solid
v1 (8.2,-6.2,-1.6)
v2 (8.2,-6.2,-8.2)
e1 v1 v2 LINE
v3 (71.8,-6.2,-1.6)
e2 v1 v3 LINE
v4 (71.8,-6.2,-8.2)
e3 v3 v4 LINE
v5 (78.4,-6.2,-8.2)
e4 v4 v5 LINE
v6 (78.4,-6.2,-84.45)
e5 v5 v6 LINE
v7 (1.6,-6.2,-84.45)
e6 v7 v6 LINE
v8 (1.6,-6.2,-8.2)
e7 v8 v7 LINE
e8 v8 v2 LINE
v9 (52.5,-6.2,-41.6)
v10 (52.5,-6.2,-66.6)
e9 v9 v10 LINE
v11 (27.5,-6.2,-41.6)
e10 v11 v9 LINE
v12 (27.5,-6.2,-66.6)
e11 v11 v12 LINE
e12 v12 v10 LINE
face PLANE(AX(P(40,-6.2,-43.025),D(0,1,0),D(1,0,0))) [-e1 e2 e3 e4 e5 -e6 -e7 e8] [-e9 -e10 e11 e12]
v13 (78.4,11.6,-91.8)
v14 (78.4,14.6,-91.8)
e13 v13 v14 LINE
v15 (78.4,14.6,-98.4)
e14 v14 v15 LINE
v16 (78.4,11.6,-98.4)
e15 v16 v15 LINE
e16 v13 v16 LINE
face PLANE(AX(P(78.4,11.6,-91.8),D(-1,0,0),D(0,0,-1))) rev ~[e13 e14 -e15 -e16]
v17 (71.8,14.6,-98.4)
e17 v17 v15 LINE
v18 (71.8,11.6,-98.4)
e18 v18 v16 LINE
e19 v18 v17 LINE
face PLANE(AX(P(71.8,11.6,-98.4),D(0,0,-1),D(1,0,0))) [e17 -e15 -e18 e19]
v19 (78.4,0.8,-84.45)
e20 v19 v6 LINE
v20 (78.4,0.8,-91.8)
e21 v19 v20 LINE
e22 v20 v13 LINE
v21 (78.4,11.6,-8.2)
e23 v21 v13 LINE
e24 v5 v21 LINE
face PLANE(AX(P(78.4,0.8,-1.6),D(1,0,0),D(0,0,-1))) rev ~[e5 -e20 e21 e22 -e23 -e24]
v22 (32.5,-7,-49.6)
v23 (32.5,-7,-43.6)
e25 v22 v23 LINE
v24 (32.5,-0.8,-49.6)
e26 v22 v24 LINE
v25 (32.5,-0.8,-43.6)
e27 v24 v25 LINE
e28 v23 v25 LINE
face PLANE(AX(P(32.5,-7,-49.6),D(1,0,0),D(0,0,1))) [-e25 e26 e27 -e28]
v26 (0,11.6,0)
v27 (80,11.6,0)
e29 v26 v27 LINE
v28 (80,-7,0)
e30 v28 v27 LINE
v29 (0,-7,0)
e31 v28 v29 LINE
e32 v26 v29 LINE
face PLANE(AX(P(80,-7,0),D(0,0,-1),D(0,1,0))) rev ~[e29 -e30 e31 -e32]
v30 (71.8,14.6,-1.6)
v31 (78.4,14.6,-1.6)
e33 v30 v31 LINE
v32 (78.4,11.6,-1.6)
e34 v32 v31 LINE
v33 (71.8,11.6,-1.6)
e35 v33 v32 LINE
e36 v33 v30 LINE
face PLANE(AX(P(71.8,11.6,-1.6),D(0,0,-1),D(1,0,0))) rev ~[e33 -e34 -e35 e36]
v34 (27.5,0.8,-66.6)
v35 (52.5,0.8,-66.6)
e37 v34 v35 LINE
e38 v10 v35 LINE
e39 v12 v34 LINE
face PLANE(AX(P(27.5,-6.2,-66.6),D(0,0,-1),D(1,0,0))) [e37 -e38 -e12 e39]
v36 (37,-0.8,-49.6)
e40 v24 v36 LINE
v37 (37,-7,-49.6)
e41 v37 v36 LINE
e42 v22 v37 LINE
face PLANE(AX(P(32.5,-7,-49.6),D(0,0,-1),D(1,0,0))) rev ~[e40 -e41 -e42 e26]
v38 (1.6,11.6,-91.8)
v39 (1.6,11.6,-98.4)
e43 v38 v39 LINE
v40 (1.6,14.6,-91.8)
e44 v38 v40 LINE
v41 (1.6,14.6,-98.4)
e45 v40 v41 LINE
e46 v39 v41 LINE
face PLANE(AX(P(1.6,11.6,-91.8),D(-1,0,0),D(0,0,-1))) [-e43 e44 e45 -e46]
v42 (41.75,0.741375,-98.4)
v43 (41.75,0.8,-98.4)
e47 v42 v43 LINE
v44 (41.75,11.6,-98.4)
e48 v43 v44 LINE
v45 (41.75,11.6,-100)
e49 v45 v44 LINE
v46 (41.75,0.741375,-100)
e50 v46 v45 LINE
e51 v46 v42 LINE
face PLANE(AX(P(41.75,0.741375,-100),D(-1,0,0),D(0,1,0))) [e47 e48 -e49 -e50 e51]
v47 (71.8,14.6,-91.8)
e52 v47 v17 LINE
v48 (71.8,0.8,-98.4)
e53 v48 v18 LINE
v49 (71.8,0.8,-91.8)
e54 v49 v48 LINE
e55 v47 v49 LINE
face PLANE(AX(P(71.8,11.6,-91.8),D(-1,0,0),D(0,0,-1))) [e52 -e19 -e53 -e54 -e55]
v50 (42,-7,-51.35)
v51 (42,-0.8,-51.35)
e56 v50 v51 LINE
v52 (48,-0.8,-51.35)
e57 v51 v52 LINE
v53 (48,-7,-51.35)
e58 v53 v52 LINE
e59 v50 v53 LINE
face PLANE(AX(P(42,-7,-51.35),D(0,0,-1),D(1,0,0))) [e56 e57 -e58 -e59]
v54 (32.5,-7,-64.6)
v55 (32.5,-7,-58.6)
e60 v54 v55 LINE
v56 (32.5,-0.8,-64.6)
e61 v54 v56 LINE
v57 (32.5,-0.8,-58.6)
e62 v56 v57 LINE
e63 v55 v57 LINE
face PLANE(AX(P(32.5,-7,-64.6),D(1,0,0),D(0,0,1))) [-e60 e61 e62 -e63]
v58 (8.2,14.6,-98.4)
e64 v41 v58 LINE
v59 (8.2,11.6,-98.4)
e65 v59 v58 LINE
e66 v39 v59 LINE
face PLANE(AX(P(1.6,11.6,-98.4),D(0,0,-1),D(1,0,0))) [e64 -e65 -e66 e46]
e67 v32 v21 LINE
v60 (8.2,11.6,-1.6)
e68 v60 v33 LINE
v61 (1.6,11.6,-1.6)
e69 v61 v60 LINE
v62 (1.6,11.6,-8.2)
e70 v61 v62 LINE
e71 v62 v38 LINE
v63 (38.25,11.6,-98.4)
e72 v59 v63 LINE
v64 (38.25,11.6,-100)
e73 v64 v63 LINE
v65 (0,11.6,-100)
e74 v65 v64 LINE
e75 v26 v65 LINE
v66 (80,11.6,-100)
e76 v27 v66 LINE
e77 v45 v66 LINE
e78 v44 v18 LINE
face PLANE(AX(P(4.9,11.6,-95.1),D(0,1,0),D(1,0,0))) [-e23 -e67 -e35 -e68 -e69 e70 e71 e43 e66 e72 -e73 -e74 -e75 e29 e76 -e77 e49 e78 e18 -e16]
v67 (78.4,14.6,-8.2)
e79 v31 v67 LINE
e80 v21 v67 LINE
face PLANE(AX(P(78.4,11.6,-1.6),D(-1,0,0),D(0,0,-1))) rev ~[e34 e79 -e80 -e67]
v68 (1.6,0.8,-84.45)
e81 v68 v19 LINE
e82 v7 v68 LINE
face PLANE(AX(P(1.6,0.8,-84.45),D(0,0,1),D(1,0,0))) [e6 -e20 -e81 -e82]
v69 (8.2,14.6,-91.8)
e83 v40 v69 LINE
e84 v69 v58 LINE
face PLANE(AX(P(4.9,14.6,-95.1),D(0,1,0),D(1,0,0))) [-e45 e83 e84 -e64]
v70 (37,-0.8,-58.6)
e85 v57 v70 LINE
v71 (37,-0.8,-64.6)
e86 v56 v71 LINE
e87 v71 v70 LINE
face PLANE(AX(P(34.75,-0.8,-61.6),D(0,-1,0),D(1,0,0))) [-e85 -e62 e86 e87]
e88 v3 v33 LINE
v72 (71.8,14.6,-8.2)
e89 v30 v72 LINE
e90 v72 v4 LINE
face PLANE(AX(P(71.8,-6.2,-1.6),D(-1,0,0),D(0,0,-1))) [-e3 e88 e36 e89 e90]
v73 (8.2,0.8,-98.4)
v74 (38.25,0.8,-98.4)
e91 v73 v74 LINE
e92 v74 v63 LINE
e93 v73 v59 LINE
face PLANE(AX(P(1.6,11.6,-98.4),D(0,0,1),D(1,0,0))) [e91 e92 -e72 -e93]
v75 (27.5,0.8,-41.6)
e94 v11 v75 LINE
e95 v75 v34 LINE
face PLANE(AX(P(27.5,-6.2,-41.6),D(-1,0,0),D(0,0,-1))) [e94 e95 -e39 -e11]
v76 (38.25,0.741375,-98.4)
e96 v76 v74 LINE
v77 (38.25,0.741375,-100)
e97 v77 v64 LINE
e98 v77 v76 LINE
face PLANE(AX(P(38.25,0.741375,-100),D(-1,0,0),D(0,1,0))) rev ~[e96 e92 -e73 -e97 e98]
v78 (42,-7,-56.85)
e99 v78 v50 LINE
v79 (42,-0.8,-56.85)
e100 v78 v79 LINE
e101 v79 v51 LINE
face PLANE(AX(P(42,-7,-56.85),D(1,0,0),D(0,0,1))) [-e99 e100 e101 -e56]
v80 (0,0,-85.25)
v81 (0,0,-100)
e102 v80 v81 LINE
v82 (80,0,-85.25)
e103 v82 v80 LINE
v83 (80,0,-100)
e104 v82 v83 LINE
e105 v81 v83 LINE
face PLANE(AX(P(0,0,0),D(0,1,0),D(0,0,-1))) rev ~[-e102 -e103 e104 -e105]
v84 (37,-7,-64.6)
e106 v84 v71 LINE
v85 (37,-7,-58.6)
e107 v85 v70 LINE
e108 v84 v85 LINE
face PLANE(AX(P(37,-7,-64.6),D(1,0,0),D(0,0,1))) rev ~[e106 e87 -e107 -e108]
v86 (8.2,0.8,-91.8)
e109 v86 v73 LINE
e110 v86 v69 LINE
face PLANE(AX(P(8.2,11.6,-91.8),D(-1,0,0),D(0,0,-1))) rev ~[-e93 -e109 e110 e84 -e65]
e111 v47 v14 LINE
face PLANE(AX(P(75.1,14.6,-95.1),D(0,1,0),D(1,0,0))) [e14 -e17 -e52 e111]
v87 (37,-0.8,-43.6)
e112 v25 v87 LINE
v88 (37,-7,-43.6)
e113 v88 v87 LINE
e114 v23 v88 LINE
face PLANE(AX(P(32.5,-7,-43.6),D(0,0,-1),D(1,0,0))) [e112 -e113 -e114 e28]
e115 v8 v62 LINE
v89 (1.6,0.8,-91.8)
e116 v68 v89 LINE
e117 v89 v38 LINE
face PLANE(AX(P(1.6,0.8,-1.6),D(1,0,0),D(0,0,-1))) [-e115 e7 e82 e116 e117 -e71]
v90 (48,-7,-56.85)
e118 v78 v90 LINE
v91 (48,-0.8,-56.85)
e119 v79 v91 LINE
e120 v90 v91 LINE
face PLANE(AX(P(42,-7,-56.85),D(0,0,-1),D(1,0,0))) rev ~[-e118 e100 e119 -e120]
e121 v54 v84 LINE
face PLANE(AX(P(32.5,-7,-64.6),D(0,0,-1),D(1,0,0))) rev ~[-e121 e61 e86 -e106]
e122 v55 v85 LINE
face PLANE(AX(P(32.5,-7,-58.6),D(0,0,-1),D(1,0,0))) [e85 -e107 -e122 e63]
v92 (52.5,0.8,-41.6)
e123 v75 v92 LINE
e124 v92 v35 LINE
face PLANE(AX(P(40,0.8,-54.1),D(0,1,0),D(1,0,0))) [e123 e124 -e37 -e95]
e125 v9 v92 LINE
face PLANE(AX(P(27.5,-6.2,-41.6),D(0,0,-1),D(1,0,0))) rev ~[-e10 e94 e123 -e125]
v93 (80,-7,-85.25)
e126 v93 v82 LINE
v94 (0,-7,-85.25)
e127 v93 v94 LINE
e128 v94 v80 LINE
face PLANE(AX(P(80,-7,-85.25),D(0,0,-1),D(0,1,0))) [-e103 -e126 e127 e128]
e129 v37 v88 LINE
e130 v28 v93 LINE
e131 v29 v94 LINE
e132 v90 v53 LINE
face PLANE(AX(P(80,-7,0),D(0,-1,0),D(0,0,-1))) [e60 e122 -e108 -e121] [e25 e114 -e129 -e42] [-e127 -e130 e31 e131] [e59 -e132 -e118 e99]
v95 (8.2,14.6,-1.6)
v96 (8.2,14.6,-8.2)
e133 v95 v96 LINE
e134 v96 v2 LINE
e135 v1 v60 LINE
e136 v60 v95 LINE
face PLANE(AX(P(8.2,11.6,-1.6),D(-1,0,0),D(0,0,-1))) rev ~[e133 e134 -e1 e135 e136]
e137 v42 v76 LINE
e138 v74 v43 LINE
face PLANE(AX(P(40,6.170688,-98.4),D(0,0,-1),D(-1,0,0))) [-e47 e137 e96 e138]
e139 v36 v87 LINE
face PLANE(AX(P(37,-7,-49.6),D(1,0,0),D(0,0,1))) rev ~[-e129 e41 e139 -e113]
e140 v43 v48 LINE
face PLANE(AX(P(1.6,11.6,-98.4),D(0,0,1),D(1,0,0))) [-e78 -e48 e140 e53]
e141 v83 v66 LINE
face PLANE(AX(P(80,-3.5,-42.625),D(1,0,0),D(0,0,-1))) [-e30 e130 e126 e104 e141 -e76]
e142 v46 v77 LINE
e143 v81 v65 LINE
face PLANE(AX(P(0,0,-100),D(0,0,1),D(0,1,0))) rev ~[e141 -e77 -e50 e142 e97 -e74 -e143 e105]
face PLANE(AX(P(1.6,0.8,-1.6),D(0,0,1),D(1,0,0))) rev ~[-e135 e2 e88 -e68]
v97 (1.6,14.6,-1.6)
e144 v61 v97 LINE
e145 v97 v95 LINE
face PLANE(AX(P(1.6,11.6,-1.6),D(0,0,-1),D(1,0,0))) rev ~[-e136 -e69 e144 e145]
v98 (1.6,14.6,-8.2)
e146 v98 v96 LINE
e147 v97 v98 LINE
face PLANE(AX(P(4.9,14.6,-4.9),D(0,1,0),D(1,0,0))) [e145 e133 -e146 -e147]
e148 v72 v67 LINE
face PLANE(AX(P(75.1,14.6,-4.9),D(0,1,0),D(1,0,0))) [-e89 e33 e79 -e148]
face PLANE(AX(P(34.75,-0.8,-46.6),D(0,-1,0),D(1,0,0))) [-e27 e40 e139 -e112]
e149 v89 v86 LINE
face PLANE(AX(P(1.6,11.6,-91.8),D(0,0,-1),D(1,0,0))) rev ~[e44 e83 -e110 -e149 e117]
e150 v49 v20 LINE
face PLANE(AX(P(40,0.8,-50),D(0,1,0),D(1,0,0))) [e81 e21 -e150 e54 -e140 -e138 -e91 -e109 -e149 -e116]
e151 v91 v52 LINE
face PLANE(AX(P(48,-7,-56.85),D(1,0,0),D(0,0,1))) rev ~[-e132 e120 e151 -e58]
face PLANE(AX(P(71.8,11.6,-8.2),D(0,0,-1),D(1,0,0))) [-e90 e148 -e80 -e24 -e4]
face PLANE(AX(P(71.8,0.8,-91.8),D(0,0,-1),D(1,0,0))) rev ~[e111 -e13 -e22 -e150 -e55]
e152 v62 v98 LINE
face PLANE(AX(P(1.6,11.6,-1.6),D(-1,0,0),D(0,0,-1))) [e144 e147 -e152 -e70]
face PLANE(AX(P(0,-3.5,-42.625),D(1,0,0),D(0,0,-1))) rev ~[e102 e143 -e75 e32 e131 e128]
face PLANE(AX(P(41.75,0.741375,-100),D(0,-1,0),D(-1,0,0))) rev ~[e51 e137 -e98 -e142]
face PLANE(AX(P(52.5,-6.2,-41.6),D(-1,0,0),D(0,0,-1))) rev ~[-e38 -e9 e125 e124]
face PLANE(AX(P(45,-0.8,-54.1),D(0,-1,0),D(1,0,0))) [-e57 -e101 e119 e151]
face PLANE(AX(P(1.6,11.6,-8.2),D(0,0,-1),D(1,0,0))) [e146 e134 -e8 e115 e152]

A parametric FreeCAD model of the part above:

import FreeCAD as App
import Part
import Sketcher

V = App.Vector
Q = App.Units.Quantity

doc = App.newDocument("Part")
params = doc.addObject("Spreadsheet::Sheet", "Params")
for row, (alias, value) in enumerate([
    ("sketch1_height", "100 mm"),
    ("sketch1_width", "11.6 mm"),
    ("pad1_length", "80 mm"),
    ("sketch2_width", "76.8 mm"),
    ("sketch2_height", "96.8 mm"),
    ("pocket1_length", "10.8 mm"),
    ("sketch3_width", "7 mm"),
    ("sketch3_height", "85.25 mm"),
    ("pad2_length", "80 mm"),
    ("sketch4_width", "76.8 mm"),
    ("sketch4_height", "82.85 mm"),
    ("pad3_length", "7 mm"),
    ("sketch5_width", "6.6 mm"),
    ("pad4_length", "17.8 mm"),
    ("sketch6_width", "6.6 mm"),
    ("pad5_length", "10.8 mm"),
    ("sketch7_width", "3.5 mm"),
    ("pocket2_length", "1.6 mm"),
    ("sketch8_width", "6.6 mm"),
    ("pad6_length", "3 mm"),
    ("sketch9_width", "25 mm"),
    ("pad7_length", "7 mm"),
    ("sketch10_width", "6 mm"),
    ("sketch10_width2", "4.5 mm"),
    ("sketch10_height", "5.5 mm"),
    ("pocket3_length", "6.2 mm"),
], start=1):
    params.set(f"A{row}", alias)
    params.set(f"B{row}", "=" + value)
    params.setAlias(f"B{row}", alias)

body = doc.addObject("PartDesign::Body", "Body")

sketch1 = doc.addObject("Sketcher::SketchObject", "Sketch")
body.addObject(sketch1)
sketch1.AttachmentSupport = (doc.YZ_Plane, [""])
sketch1.MapMode = "FlatFace"
sketch1.addGeometry(Part.LineSegment(V(11.6, 0, 0), V(0, 0, 0)), False)
sketch1.addGeometry(Part.LineSegment(V(0, 0, 0), V(0, -100, 0)), False)
sketch1.addGeometry(Part.LineSegment(V(0, -100, 0), V(11.6, -100, 0)), False)
sketch1.addGeometry(Part.LineSegment(V(11.6, -100, 0), V(11.6, 0, 0)), False)
sketch1.addConstraint(Sketcher.Constraint("Coincident", 0, 2, 1, 1))
sketch1.addConstraint(Sketcher.Constraint("Coincident", 1, 2, 2, 1))
sketch1.addConstraint(Sketcher.Constraint("Coincident", 2, 2, 3, 1))
sketch1.addConstraint(Sketcher.Constraint("Coincident", 3, 2, 0, 1))
sketch1.addConstraint(Sketcher.Constraint("Horizontal", 0))
sketch1.addConstraint(Sketcher.Constraint("Vertical", 1))
sketch1.addConstraint(Sketcher.Constraint("Horizontal", 2))
sketch1.addConstraint(Sketcher.Constraint("Vertical", 3))
sketch1.addConstraint(Sketcher.Constraint("Coincident", 0, 2, -1, 1))
sketch1.addConstraint(Sketcher.Constraint("DistanceY", 1, 2, 1, 1, Q("100 mm")))
sketch1.addConstraint(Sketcher.Constraint("DistanceX", 0, 2, 0, 1, Q("11.6 mm")))
sketch1.setExpression("Constraints[9]", "Params.sketch1_height")
sketch1.setExpression("Constraints[10]", "Params.sketch1_width")
pad1 = doc.addObject("PartDesign::Pad", "Pad")
body.addObject(pad1)
pad1.Profile = sketch1
pad1.setExpression("Length", "Params.pad1_length")

sketch2 = doc.addObject("Sketcher::SketchObject", "Sketch001")
body.addObject(sketch2)
sketch2.AttachmentSupport = (doc.XZ_Plane, [""])
sketch2.MapMode = "FlatFace"
sketch2.AttachmentOffset = App.Placement(V(0, 0, -11.6), App.Rotation())
sketch2.addGeometry(Part.LineSegment(V(1.6, -98.4, 0), V(1.6, -1.6, 0)), False)
sketch2.addGeometry(Part.LineSegment(V(1.6, -1.6, 0), V(78.4, -1.6, 0)), False)
sketch2.addGeometry(Part.LineSegment(V(78.4, -1.6, 0), V(78.4, -98.4, 0)), False)
sketch2.addGeometry(Part.LineSegment(V(78.4, -98.4, 0), V(1.6, -98.4, 0)), False)
sketch2.addConstraint(Sketcher.Constraint("Coincident", 0, 2, 1, 1))
sketch2.addConstraint(Sketcher.Constraint("Coincident", 1, 2, 2, 1))
sketch2.addConstraint(Sketcher.Constraint("Coincident", 2, 2, 3, 1))
sketch2.addConstraint(Sketcher.Constraint("Coincident", 3, 2, 0, 1))
sketch2.addConstraint(Sketcher.Constraint("Vertical", 0))
sketch2.addConstraint(Sketcher.Constraint("Horizontal", 1))
sketch2.addConstraint(Sketcher.Constraint("Vertical", 2))
sketch2.addConstraint(Sketcher.Constraint("Horizontal", 3))
sketch2.addConstraint(Sketcher.Constraint("DistanceX", 1, 1, 1, 2, Q("76.8 mm")))
sketch2.addConstraint(Sketcher.Constraint("DistanceY", 0, 1, 0, 2, Q("96.8 mm")))
sketch2.addConstraint(Sketcher.Constraint("DistanceX", -1, 1, 0, 2, Q("1.6 mm")))
sketch2.addConstraint(Sketcher.Constraint("DistanceY", 0, 2, -1, 1, Q("1.6 mm")))
sketch2.setExpression("Constraints[8]", "Params.sketch2_width")
sketch2.setExpression("Constraints[9]", "Params.sketch2_height")
pocket1 = doc.addObject("PartDesign::Pocket", "Pocket")
body.addObject(pocket1)
pocket1.Profile = sketch2
pocket1.setExpression("Length", "Params.pocket1_length")
pocket1.Reversed = True
body2 = doc.addObject("PartDesign::Body", "Body001")

sketch3 = doc.addObject("Sketcher::SketchObject", "Sketch002")
body2.addObject(sketch3)
sketch3.AttachmentSupport = (doc.getObject("YZ_Plane001"), [""])
sketch3.MapMode = "FlatFace"
sketch3.AttachmentOffset = App.Placement(V(0, 0, 80), App.Rotation())
sketch3.addGeometry(Part.LineSegment(V(0, 0, 0), V(-7, 0, 0)), False)
sketch3.addGeometry(Part.LineSegment(V(-7, 0, 0), V(-7, -85.25, 0)), False)
sketch3.addGeometry(Part.LineSegment(V(-7, -85.25, 0), V(0, -85.25, 0)), False)
sketch3.addGeometry(Part.LineSegment(V(0, -85.25, 0), V(0, 0, 0)), False)
sketch3.addConstraint(Sketcher.Constraint("Coincident", 0, 2, 1, 1))
sketch3.addConstraint(Sketcher.Constraint("Coincident", 1, 2, 2, 1))
sketch3.addConstraint(Sketcher.Constraint("Coincident", 2, 2, 3, 1))
sketch3.addConstraint(Sketcher.Constraint("Coincident", 3, 2, 0, 1))
sketch3.addConstraint(Sketcher.Constraint("Horizontal", 0))
sketch3.addConstraint(Sketcher.Constraint("Vertical", 1))
sketch3.addConstraint(Sketcher.Constraint("Horizontal", 2))
sketch3.addConstraint(Sketcher.Constraint("Vertical", 3))
sketch3.addConstraint(Sketcher.Constraint("Coincident", 3, 2, -1, 1))
sketch3.addConstraint(Sketcher.Constraint("DistanceX", 0, 2, 0, 1, Q("7 mm")))
sketch3.addConstraint(Sketcher.Constraint("DistanceY", 1, 2, 1, 1, Q("85.25 mm")))
sketch3.setExpression("Constraints[9]", "Params.sketch3_width")
sketch3.setExpression("Constraints[10]", "Params.sketch3_height")
pad2 = doc.addObject("PartDesign::Pad", "Pad001")
body2.addObject(pad2)
pad2.Profile = sketch3
pad2.setExpression("Length", "Params.pad2_length")
pad2.Reversed = True
body3 = doc.addObject("PartDesign::Body", "Body002")

sketch4 = doc.addObject("Sketcher::SketchObject", "Sketch003")
body3.addObject(sketch4)
sketch4.AttachmentSupport = (doc.getObject("XZ_Plane002"), [""])
sketch4.MapMode = "FlatFace"
sketch4.AttachmentOffset = App.Placement(V(0, 0, -0.8), App.Rotation())
sketch4.addGeometry(Part.LineSegment(V(1.6, -84.45, 0), V(1.6, -1.6, 0)), False)
sketch4.addGeometry(Part.LineSegment(V(1.6, -1.6, 0), V(78.4, -1.6, 0)), False)
sketch4.addGeometry(Part.LineSegment(V(78.4, -1.6, 0), V(78.4, -84.45, 0)), False)
sketch4.addGeometry(Part.LineSegment(V(78.4, -84.45, 0), V(1.6, -84.45, 0)), False)
sketch4.addConstraint(Sketcher.Constraint("Coincident", 0, 2, 1, 1))
sketch4.addConstraint(Sketcher.Constraint("Coincident", 1, 2, 2, 1))
sketch4.addConstraint(Sketcher.Constraint("Coincident", 2, 2, 3, 1))
sketch4.addConstraint(Sketcher.Constraint("Coincident", 3, 2, 0, 1))
sketch4.addConstraint(Sketcher.Constraint("Vertical", 0))
sketch4.addConstraint(Sketcher.Constraint("Horizontal", 1))
sketch4.addConstraint(Sketcher.Constraint("Vertical", 2))
sketch4.addConstraint(Sketcher.Constraint("Horizontal", 3))
sketch4.addConstraint(Sketcher.Constraint("DistanceX", 1, 1, 1, 2, Q("76.8 mm")))
sketch4.addConstraint(Sketcher.Constraint("DistanceY", 0, 1, 0, 2, Q("82.85 mm")))
sketch4.addConstraint(Sketcher.Constraint("DistanceX", -1, 1, 0, 2, Q("1.6 mm")))
sketch4.addConstraint(Sketcher.Constraint("DistanceY", 0, 2, -1, 1, Q("1.6 mm")))
sketch4.setExpression("Constraints[8]", "Params.sketch4_width")
sketch4.setExpression("Constraints[9]", "Params.sketch4_height")
pad3 = doc.addObject("PartDesign::Pad", "Pad002")
body3.addObject(pad3)
pad3.Profile = sketch4
pad3.setExpression("Length", "Params.pad3_length")
doc.recompute()

body4 = doc.addObject("PartDesign::Body", "Body003")
body4.BaseFeature = body3
boolean = doc.addObject("PartDesign::Boolean", "Boolean")
body.addObject(boolean)
boolean.Type = "Cut"
boolean.addObjects([body4])
doc.recompute()

boolean2 = doc.addObject("PartDesign::Boolean", "Boolean001")
body2.addObject(boolean2)
boolean2.Type = "Cut"
boolean2.addObjects([body3])
doc.recompute()

boolean3 = doc.addObject("PartDesign::Boolean", "Boolean002")
body.addObject(boolean3)
boolean3.Type = "Fuse"
boolean3.addObjects([body2])

sketch5 = doc.addObject("Sketcher::SketchObject", "Sketch004")
body.addObject(sketch5)
sketch5.AttachmentSupport = (doc.XZ_Plane, [""])
sketch5.MapMode = "FlatFace"
sketch5.AttachmentOffset = App.Placement(V(0, 0, 6.2), App.Rotation())
sketch5.addGeometry(Part.LineSegment(V(1.6, -8.2, 0), V(1.6, -1.6, 0)), False)
sketch5.addGeometry(Part.LineSegment(V(1.6, -1.6, 0), V(8.2, -1.6, 0)), False)
sketch5.addGeometry(Part.LineSegment(V(8.2, -1.6, 0), V(8.2, -8.2, 0)), False)
sketch5.addGeometry(Part.LineSegment(V(8.2, -8.2, 0), V(1.6, -8.2, 0)), False)
sketch5.addGeometry(Part.LineSegment(V(71.8, -8.2, 0), V(71.8, -1.6, 0)), False)
sketch5.addGeometry(Part.LineSegment(V(71.8, -1.6, 0), V(78.4, -1.6, 0)), False)
sketch5.addGeometry(Part.LineSegment(V(78.4, -1.6, 0), V(78.4, -8.2, 0)), False)
sketch5.addGeometry(Part.LineSegment(V(78.4, -8.2, 0), V(71.8, -8.2, 0)), False)
sketch5.addConstraint(Sketcher.Constraint("Coincident", 0, 2, 1, 1))
sketch5.addConstraint(Sketcher.Constraint("Coincident", 1, 2, 2, 1))
sketch5.addConstraint(Sketcher.Constraint("Coincident", 2, 2, 3, 1))
sketch5.addConstraint(Sketcher.Constraint("Coincident", 3, 2, 0, 1))
sketch5.addConstraint(Sketcher.Constraint("Coincident", 4, 2, 5, 1))
sketch5.addConstraint(Sketcher.Constraint("Coincident", 5, 2, 6, 1))
sketch5.addConstraint(Sketcher.Constraint("Coincident", 6, 2, 7, 1))
sketch5.addConstraint(Sketcher.Constraint("Coincident", 7, 2, 4, 1))
sketch5.addConstraint(Sketcher.Constraint("Vertical", 0))
sketch5.addConstraint(Sketcher.Constraint("Horizontal", 1))
sketch5.addConstraint(Sketcher.Constraint("Vertical", 2))
sketch5.addConstraint(Sketcher.Constraint("Horizontal", 3))
sketch5.addConstraint(Sketcher.Constraint("Vertical", 4))
sketch5.addConstraint(Sketcher.Constraint("Horizontal", 5))
sketch5.addConstraint(Sketcher.Constraint("Vertical", 6))
sketch5.addConstraint(Sketcher.Constraint("Horizontal", 7))
sketch5.addConstraint(Sketcher.Constraint("Horizontal", 1, 2, 4, 2))
sketch5.addConstraint(Sketcher.Constraint("Horizontal", 3, 2, 6, 2))
sketch5.addConstraint(Sketcher.Constraint("Equal", 3, 5))
sketch5.addConstraint(Sketcher.Constraint("Equal", 7, 0))
sketch5.addConstraint(Sketcher.Constraint("DistanceX", 1, 1, 1, 2, Q("6.6 mm")))
sketch5.addConstraint(Sketcher.Constraint("DistanceX", -1, 1, 0, 2, Q("1.6 mm")))
sketch5.addConstraint(Sketcher.Constraint("DistanceY", 0, 2, -1, 1, Q("1.6 mm")))
sketch5.addConstraint(Sketcher.Constraint("DistanceX", -1, 1, 4, 2, Q("71.8 mm")))
sketch5.setExpression("Constraints[20]", "Params.sketch5_width")
pad4 = doc.addObject("PartDesign::Pad", "Pad003")
body.addObject(pad4)
pad4.Profile = sketch5
pad4.setExpression("Length", "Params.pad4_length")
pad4.Reversed = True

sketch6 = doc.addObject("Sketcher::SketchObject", "Sketch005")
body.addObject(sketch6)
sketch6.AttachmentSupport = (doc.XZ_Plane, [""])
sketch6.MapMode = "FlatFace"
sketch6.AttachmentOffset = App.Placement(V(0, 0, -0.8), App.Rotation())
sketch6.addGeometry(Part.LineSegment(V(1.6, -98.4, 0), V(1.6, -91.8, 0)), False)
sketch6.addGeometry(Part.LineSegment(V(1.6, -91.8, 0), V(8.2, -91.8, 0)), False)
sketch6.addGeometry(Part.LineSegment(V(8.2, -91.8, 0), V(8.2, -98.4, 0)), False)
sketch6.addGeometry(Part.LineSegment(V(8.2, -98.4, 0), V(1.6, -98.4, 0)), False)
sketch6.addGeometry(Part.LineSegment(V(71.8, -98.4, 0), V(71.8, -91.8, 0)), False)
sketch6.addGeometry(Part.LineSegment(V(71.8, -91.8, 0), V(78.4, -91.8, 0)), False)
sketch6.addGeometry(Part.LineSegment(V(78.4, -91.8, 0), V(78.4, -98.4, 0)), False)
sketch6.addGeometry(Part.LineSegment(V(78.4, -98.4, 0), V(71.8, -98.4, 0)), False)
sketch6.addConstraint(Sketcher.Constraint("Coincident", 0, 2, 1, 1))
sketch6.addConstraint(Sketcher.Constraint("Coincident", 1, 2, 2, 1))
sketch6.addConstraint(Sketcher.Constraint("Coincident", 2, 2, 3, 1))
sketch6.addConstraint(Sketcher.Constraint("Coincident", 3, 2, 0, 1))
sketch6.addConstraint(Sketcher.Constraint("Coincident", 4, 2, 5, 1))
sketch6.addConstraint(Sketcher.Constraint("Coincident", 5, 2, 6, 1))
sketch6.addConstraint(Sketcher.Constraint("Coincident", 6, 2, 7, 1))
sketch6.addConstraint(Sketcher.Constraint("Coincident", 7, 2, 4, 1))
sketch6.addConstraint(Sketcher.Constraint("Vertical", 0))
sketch6.addConstraint(Sketcher.Constraint("Horizontal", 1))
sketch6.addConstraint(Sketcher.Constraint("Vertical", 2))
sketch6.addConstraint(Sketcher.Constraint("Horizontal", 3))
sketch6.addConstraint(Sketcher.Constraint("Vertical", 4))
sketch6.addConstraint(Sketcher.Constraint("Horizontal", 5))
sketch6.addConstraint(Sketcher.Constraint("Vertical", 6))
sketch6.addConstraint(Sketcher.Constraint("Horizontal", 7))
sketch6.addConstraint(Sketcher.Constraint("Horizontal", 1, 2, 4, 2))
sketch6.addConstraint(Sketcher.Constraint("Horizontal", 3, 2, 6, 2))
sketch6.addConstraint(Sketcher.Constraint("Equal", 3, 5))
sketch6.addConstraint(Sketcher.Constraint("Equal", 7, 0))
sketch6.addConstraint(Sketcher.Constraint("DistanceX", 1, 1, 1, 2, Q("6.6 mm")))
sketch6.addConstraint(Sketcher.Constraint("DistanceX", -1, 1, 0, 2, Q("1.6 mm")))
sketch6.addConstraint(Sketcher.Constraint("DistanceY", 0, 2, -1, 1, Q("91.8 mm")))
sketch6.addConstraint(Sketcher.Constraint("DistanceX", -1, 1, 4, 2, Q("71.8 mm")))
sketch6.setExpression("Constraints[20]", "Params.sketch6_width")
pad5 = doc.addObject("PartDesign::Pad", "Pad004")
body.addObject(pad5)
pad5.Profile = sketch6
pad5.setExpression("Length", "Params.pad5_length")
pad5.Reversed = True

sketch7 = doc.addObject("Sketcher::SketchObject", "Sketch006")
body.addObject(sketch7)
sketch7.AttachmentSupport = (doc.XY_Plane, [""])
sketch7.MapMode = "FlatFace"
sketch7.AttachmentOffset = App.Placement(V(0, 0, -100), App.Rotation())
sketch7.addGeometry(Part.LineSegment(V(41.75, 11.6, 0), V(41.75, 0.741375, 0)), False)
sketch7.addGeometry(Part.LineSegment(V(41.75, 0.741375, 0), V(38.25, 0.741375, 0)), False)
sketch7.addGeometry(Part.LineSegment(V(38.25, 0.741375, 0), V(38.25, 11.6, 0)), False)
sketch7.addGeometry(Part.LineSegment(V(38.25, 11.6, 0), V(41.75, 11.6, 0)), False)
sketch7.addConstraint(Sketcher.Constraint("Coincident", 0, 2, 1, 1))
sketch7.addConstraint(Sketcher.Constraint("Coincident", 1, 2, 2, 1))
sketch7.addConstraint(Sketcher.Constraint("Coincident", 2, 2, 3, 1))
sketch7.addConstraint(Sketcher.Constraint("Coincident", 3, 2, 0, 1))
sketch7.addConstraint(Sketcher.Constraint("Vertical", 0))
sketch7.addConstraint(Sketcher.Constraint("Horizontal", 1))
sketch7.addConstraint(Sketcher.Constraint("Vertical", 2))
sketch7.addConstraint(Sketcher.Constraint("Horizontal", 3))
sketch7.addConstraint(Sketcher.Constraint("DistanceX", 1, 2, 1, 1, Q("3.5 mm")))
sketch7.addConstraint(Sketcher.Constraint("DistanceY", -1, 1, 2, 2, Q("11.6 mm")))
sketch7.addConstraint(Sketcher.Constraint("DistanceX", -1, 1, 0, 2, Q("41.75 mm")))
sketch7.addConstraint(Sketcher.Constraint("DistanceY", 0, 2, 0, 1, Q("10.858625 mm")))
sketch7.setExpression("Constraints[8]", "Params.sketch7_width")
pocket2 = doc.addObject("PartDesign::Pocket", "Pocket001")
body.addObject(pocket2)
pocket2.Profile = sketch7
pocket2.setExpression("Length", "Params.pocket2_length")
pocket2.Reversed = True

sketch8 = doc.addObject("Sketcher::SketchObject", "Sketch007")
body.addObject(sketch8)
sketch8.AttachmentSupport = (doc.XZ_Plane, [""])
sketch8.MapMode = "FlatFace"
sketch8.AttachmentOffset = App.Placement(V(0, 0, -11.6), App.Rotation())
sketch8.addGeometry(Part.LineSegment(V(1.6, -98.4, 0), V(1.6, -91.8, 0)), False)
sketch8.addGeometry(Part.LineSegment(V(1.6, -91.8, 0), V(8.2, -91.8, 0)), False)
sketch8.addGeometry(Part.LineSegment(V(8.2, -91.8, 0), V(8.2, -98.4, 0)), False)
sketch8.addGeometry(Part.LineSegment(V(8.2, -98.4, 0), V(1.6, -98.4, 0)), False)
sketch8.addGeometry(Part.LineSegment(V(71.8, -8.2, 0), V(71.8, -1.6, 0)), False)
sketch8.addGeometry(Part.LineSegment(V(71.8, -1.6, 0), V(78.4, -1.6, 0)), False)
sketch8.addGeometry(Part.LineSegment(V(78.4, -1.6, 0), V(78.4, -8.2, 0)), False)
sketch8.addGeometry(Part.LineSegment(V(78.4, -8.2, 0), V(71.8, -8.2, 0)), False)
sketch8.addGeometry(Part.LineSegment(V(1.6, -8.2, 0), V(1.6, -1.6, 0)), False)
sketch8.addGeometry(Part.LineSegment(V(1.6, -1.6, 0), V(8.2, -1.6, 0)), False)
sketch8.addGeometry(Part.LineSegment(V(8.2, -1.6, 0), V(8.2, -8.2, 0)), False)
sketch8.addGeometry(Part.LineSegment(V(8.2, -8.2, 0), V(1.6, -8.2, 0)), False)
sketch8.addGeometry(Part.LineSegment(V(71.8, -98.4, 0), V(71.8, -91.8, 0)), False)
sketch8.addGeometry(Part.LineSegment(V(71.8, -91.8, 0), V(78.4, -91.8, 0)), False)
sketch8.addGeometry(Part.LineSegment(V(78.4, -91.8, 0), V(78.4, -98.4, 0)), False)
sketch8.addGeometry(Part.LineSegment(V(78.4, -98.4, 0), V(71.8, -98.4, 0)), False)
sketch8.addConstraint(Sketcher.Constraint("Coincident", 0, 2, 1, 1))
sketch8.addConstraint(Sketcher.Constraint("Coincident", 1, 2, 2, 1))
sketch8.addConstraint(Sketcher.Constraint("Coincident", 2, 2, 3, 1))
sketch8.addConstraint(Sketcher.Constraint("Coincident", 3, 2, 0, 1))
sketch8.addConstraint(Sketcher.Constraint("Coincident", 4, 2, 5, 1))
sketch8.addConstraint(Sketcher.Constraint("Coincident", 5, 2, 6, 1))
sketch8.addConstraint(Sketcher.Constraint("Coincident", 6, 2, 7, 1))
sketch8.addConstraint(Sketcher.Constraint("Coincident", 7, 2, 4, 1))
sketch8.addConstraint(Sketcher.Constraint("Coincident", 8, 2, 9, 1))
sketch8.addConstraint(Sketcher.Constraint("Coincident", 9, 2, 10, 1))
sketch8.addConstraint(Sketcher.Constraint("Coincident", 10, 2, 11, 1))
sketch8.addConstraint(Sketcher.Constraint("Coincident", 11, 2, 8, 1))
sketch8.addConstraint(Sketcher.Constraint("Coincident", 12, 2, 13, 1))
sketch8.addConstraint(Sketcher.Constraint("Coincident", 13, 2, 14, 1))
sketch8.addConstraint(Sketcher.Constraint("Coincident", 14, 2, 15, 1))
sketch8.addConstraint(Sketcher.Constraint("Coincident", 15, 2, 12, 1))
sketch8.addConstraint(Sketcher.Constraint("Vertical", 0))
sketch8.addConstraint(Sketcher.Constraint("Horizontal", 1))
sketch8.addConstraint(Sketcher.Constraint("Vertical", 2))
sketch8.addConstraint(Sketcher.Constraint("Horizontal", 3))
sketch8.addConstraint(Sketcher.Constraint("Vertical", 4))
sketch8.addConstraint(Sketcher.Constraint("Horizontal", 5))
sketch8.addConstraint(Sketcher.Constraint("Vertical", 6))
sketch8.addConstraint(Sketcher.Constraint("Horizontal", 7))
sketch8.addConstraint(Sketcher.Constraint("Vertical", 8))
sketch8.addConstraint(Sketcher.Constraint("Horizontal", 9))
sketch8.addConstraint(Sketcher.Constraint("Vertical", 10))
sketch8.addConstraint(Sketcher.Constraint("Horizontal", 11))
sketch8.addConstraint(Sketcher.Constraint("Vertical", 12))
sketch8.addConstraint(Sketcher.Constraint("Horizontal", 13))
sketch8.addConstraint(Sketcher.Constraint("Vertical", 14))
sketch8.addConstraint(Sketcher.Constraint("Horizontal", 15))
sketch8.addConstraint(Sketcher.Constraint("Horizontal", 5, 2, 8, 2))
sketch8.addConstraint(Sketcher.Constraint("Horizontal", 7, 2, 10, 2))
sketch8.addConstraint(Sketcher.Constraint("Horizontal", 1, 2, 12, 2))
sketch8.addConstraint(Sketcher.Constraint("Horizontal", 3, 2, 14, 2))
sketch8.addConstraint(Sketcher.Constraint("Vertical", 3, 2, 8, 2))
sketch8.addConstraint(Sketcher.Constraint("Vertical", 2, 2, 9, 2))
sketch8.addConstraint(Sketcher.Constraint("Vertical", 7, 2, 12, 2))
sketch8.addConstraint(Sketcher.Constraint("Vertical", 6, 2, 13, 2))
sketch8.addConstraint(Sketcher.Constraint("Equal", 3, 5))
sketch8.addConstraint(Sketcher.Constraint("Equal", 15, 0))
sketch8.addConstraint(Sketcher.Constraint("Equal", 2, 4))
sketch8.addConstraint(Sketcher.Constraint("DistanceX", 1, 1, 1, 2, Q("6.6 mm")))
sketch8.addConstraint(Sketcher.Constraint("DistanceX", -1, 1, 0, 2, Q("1.6 mm")))
sketch8.addConstraint(Sketcher.Constraint("DistanceY", 0, 2, -1, 1, Q("91.8 mm")))
sketch8.addConstraint(Sketcher.Constraint("DistanceX", -1, 1, 4, 2, Q("71.8 mm")))
sketch8.addConstraint(Sketcher.Constraint("DistanceY", 4, 2, -1, 1, Q("1.6 mm")))
sketch8.setExpression("Constraints[43]", "Params.sketch8_width")
pad6 = doc.addObject("PartDesign::Pad", "Pad005")
body.addObject(pad6)
pad6.Profile = sketch8
pad6.setExpression("Length", "Params.pad6_length")
pad6.Reversed = True

sketch9 = doc.addObject("Sketcher::SketchObject", "Sketch008")
body.addObject(sketch9)
sketch9.AttachmentSupport = (doc.XZ_Plane, [""])
sketch9.MapMode = "FlatFace"
sketch9.AttachmentOffset = App.Placement(V(0, 0, 6.2), App.Rotation())
sketch9.addGeometry(Part.LineSegment(V(27.5, -66.6, 0), V(27.5, -41.6, 0)), False)
sketch9.addGeometry(Part.LineSegment(V(27.5, -41.6, 0), V(52.5, -41.6, 0)), False)
sketch9.addGeometry(Part.LineSegment(V(52.5, -41.6, 0), V(52.5, -66.6, 0)), False)
sketch9.addGeometry(Part.LineSegment(V(52.5, -66.6, 0), V(27.5, -66.6, 0)), False)
sketch9.addConstraint(Sketcher.Constraint("Coincident", 0, 2, 1, 1))
sketch9.addConstraint(Sketcher.Constraint("Coincident", 1, 2, 2, 1))
sketch9.addConstraint(Sketcher.Constraint("Coincident", 2, 2, 3, 1))
sketch9.addConstraint(Sketcher.Constraint("Coincident", 3, 2, 0, 1))
sketch9.addConstraint(Sketcher.Constraint("Vertical", 0))
sketch9.addConstraint(Sketcher.Constraint("Horizontal", 1))
sketch9.addConstraint(Sketcher.Constraint("Vertical", 2))
sketch9.addConstraint(Sketcher.Constraint("Horizontal", 3))
sketch9.addConstraint(Sketcher.Constraint("Equal", 3, 0))
sketch9.addConstraint(Sketcher.Constraint("DistanceX", 1, 1, 1, 2, Q("25 mm")))
sketch9.addConstraint(Sketcher.Constraint("DistanceX", -1, 1, 0, 2, Q("27.5 mm")))
sketch9.addConstraint(Sketcher.Constraint("DistanceY", 0, 2, -1, 1, Q("41.6 mm")))
sketch9.setExpression("Constraints[9]", "Params.sketch9_width")
pad7 = doc.addObject("PartDesign::Pad", "Pad006")
body.addObject(pad7)
pad7.Profile = sketch9
pad7.setExpression("Length", "Params.pad7_length")
pad7.Reversed = True

sketch10 = doc.addObject("Sketcher::SketchObject", "Sketch009")
body.addObject(sketch10)
sketch10.AttachmentSupport = (doc.XZ_Plane, [""])
sketch10.MapMode = "FlatFace"
sketch10.AttachmentOffset = App.Placement(V(0, 0, 7), App.Rotation())
sketch10.addGeometry(Part.LineSegment(V(32.5, -43.6, 0), V(32.5, -49.6, 0)), False)
sketch10.addGeometry(Part.LineSegment(V(32.5, -49.6, 0), V(37, -49.6, 0)), False)
sketch10.addGeometry(Part.LineSegment(V(37, -49.6, 0), V(37, -43.6, 0)), False)
sketch10.addGeometry(Part.LineSegment(V(37, -43.6, 0), V(32.5, -43.6, 0)), False)
sketch10.addGeometry(Part.LineSegment(V(32.5, -58.6, 0), V(32.5, -64.6, 0)), False)
sketch10.addGeometry(Part.LineSegment(V(32.5, -64.6, 0), V(37, -64.6, 0)), False)
sketch10.addGeometry(Part.LineSegment(V(37, -64.6, 0), V(37, -58.6, 0)), False)
sketch10.addGeometry(Part.LineSegment(V(37, -58.6, 0), V(32.5, -58.6, 0)), False)
sketch10.addGeometry(Part.LineSegment(V(42, -51.35, 0), V(42, -56.85, 0)), False)
sketch10.addGeometry(Part.LineSegment(V(42, -56.85, 0), V(48, -56.85, 0)), False)
sketch10.addGeometry(Part.LineSegment(V(48, -56.85, 0), V(48, -51.35, 0)), False)
sketch10.addGeometry(Part.LineSegment(V(48, -51.35, 0), V(42, -51.35, 0)), False)
sketch10.addConstraint(Sketcher.Constraint("Coincident", 0, 2, 1, 1))
sketch10.addConstraint(Sketcher.Constraint("Coincident", 1, 2, 2, 1))
sketch10.addConstraint(Sketcher.Constraint("Coincident", 2, 2, 3, 1))
sketch10.addConstraint(Sketcher.Constraint("Coincident", 3, 2, 0, 1))
sketch10.addConstraint(Sketcher.Constraint("Coincident", 4, 2, 5, 1))
sketch10.addConstraint(Sketcher.Constraint("Coincident", 5, 2, 6, 1))
sketch10.addConstraint(Sketcher.Constraint("Coincident", 6, 2, 7, 1))
sketch10.addConstraint(Sketcher.Constraint("Coincident", 7, 2, 4, 1))
sketch10.addConstraint(Sketcher.Constraint("Coincident", 8, 2, 9, 1))
sketch10.addConstraint(Sketcher.Constraint("Coincident", 9, 2, 10, 1))
sketch10.addConstraint(Sketcher.Constraint("Coincident", 10, 2, 11, 1))
sketch10.addConstraint(Sketcher.Constraint("Coincident", 11, 2, 8, 1))
sketch10.addConstraint(Sketcher.Constraint("Vertical", 0))
sketch10.addConstraint(Sketcher.Constraint("Horizontal", 1))
sketch10.addConstraint(Sketcher.Constraint("Vertical", 2))
sketch10.addConstraint(Sketcher.Constraint("Horizontal", 3))
sketch10.addConstraint(Sketcher.Constraint("Vertical", 4))
sketch10.addConstraint(Sketcher.Constraint("Horizontal", 5))
sketch10.addConstraint(Sketcher.Constraint("Vertical", 6))
sketch10.addConstraint(Sketcher.Constraint("Horizontal", 7))
sketch10.addConstraint(Sketcher.Constraint("Vertical", 8))
sketch10.addConstraint(Sketcher.Constraint("Horizontal", 9))
sketch10.addConstraint(Sketcher.Constraint("Vertical", 10))
sketch10.addConstraint(Sketcher.Constraint("Horizontal", 11))
sketch10.addConstraint(Sketcher.Constraint("Vertical", 3, 2, 4, 2))
sketch10.addConstraint(Sketcher.Constraint("Vertical", 2, 2, 5, 2))
sketch10.addConstraint(Sketcher.Constraint("Equal", 11, 0))
sketch10.addConstraint(Sketcher.Constraint("Equal", 2, 4))
sketch10.addConstraint(Sketcher.Constraint("DistanceX", 9, 1, 9, 2, Q("6 mm")))
sketch10.addConstraint(Sketcher.Constraint("DistanceX", 1, 1, 1, 2, Q("4.5 mm")))
sketch10.addConstraint(Sketcher.Constraint("DistanceY", 8, 2, 8, 1, Q("5.5 mm")))
sketch10.addConstraint(Sketcher.Constraint("DistanceX", -1, 1, 1, 2, Q("37 mm")))
sketch10.addConstraint(Sketcher.Constraint("DistanceX", -1, 1, 8, 2, Q("42 mm")))
sketch10.addConstraint(Sketcher.Constraint("DistanceY", 4, 2, 0, 2, Q("15 mm")))
sketch10.addConstraint(Sketcher.Constraint("DistanceY", 0, 2, -1, 1, Q("49.6 mm")))
sketch10.addConstraint(Sketcher.Constraint("DistanceY", 8, 2, -1, 1, Q("56.85 mm")))
sketch10.setExpression("Constraints[28]", "Params.sketch10_width")
sketch10.setExpression("Constraints[29]", "Params.sketch10_width2")
sketch10.setExpression("Constraints[30]", "Params.sketch10_height")
pocket3 = doc.addObject("PartDesign::Pocket", "Pocket002")
body.addObject(pocket3)
pocket3.Profile = sketch10
pocket3.setExpression("Length", "Params.pocket3_length")

doc.recompute()
